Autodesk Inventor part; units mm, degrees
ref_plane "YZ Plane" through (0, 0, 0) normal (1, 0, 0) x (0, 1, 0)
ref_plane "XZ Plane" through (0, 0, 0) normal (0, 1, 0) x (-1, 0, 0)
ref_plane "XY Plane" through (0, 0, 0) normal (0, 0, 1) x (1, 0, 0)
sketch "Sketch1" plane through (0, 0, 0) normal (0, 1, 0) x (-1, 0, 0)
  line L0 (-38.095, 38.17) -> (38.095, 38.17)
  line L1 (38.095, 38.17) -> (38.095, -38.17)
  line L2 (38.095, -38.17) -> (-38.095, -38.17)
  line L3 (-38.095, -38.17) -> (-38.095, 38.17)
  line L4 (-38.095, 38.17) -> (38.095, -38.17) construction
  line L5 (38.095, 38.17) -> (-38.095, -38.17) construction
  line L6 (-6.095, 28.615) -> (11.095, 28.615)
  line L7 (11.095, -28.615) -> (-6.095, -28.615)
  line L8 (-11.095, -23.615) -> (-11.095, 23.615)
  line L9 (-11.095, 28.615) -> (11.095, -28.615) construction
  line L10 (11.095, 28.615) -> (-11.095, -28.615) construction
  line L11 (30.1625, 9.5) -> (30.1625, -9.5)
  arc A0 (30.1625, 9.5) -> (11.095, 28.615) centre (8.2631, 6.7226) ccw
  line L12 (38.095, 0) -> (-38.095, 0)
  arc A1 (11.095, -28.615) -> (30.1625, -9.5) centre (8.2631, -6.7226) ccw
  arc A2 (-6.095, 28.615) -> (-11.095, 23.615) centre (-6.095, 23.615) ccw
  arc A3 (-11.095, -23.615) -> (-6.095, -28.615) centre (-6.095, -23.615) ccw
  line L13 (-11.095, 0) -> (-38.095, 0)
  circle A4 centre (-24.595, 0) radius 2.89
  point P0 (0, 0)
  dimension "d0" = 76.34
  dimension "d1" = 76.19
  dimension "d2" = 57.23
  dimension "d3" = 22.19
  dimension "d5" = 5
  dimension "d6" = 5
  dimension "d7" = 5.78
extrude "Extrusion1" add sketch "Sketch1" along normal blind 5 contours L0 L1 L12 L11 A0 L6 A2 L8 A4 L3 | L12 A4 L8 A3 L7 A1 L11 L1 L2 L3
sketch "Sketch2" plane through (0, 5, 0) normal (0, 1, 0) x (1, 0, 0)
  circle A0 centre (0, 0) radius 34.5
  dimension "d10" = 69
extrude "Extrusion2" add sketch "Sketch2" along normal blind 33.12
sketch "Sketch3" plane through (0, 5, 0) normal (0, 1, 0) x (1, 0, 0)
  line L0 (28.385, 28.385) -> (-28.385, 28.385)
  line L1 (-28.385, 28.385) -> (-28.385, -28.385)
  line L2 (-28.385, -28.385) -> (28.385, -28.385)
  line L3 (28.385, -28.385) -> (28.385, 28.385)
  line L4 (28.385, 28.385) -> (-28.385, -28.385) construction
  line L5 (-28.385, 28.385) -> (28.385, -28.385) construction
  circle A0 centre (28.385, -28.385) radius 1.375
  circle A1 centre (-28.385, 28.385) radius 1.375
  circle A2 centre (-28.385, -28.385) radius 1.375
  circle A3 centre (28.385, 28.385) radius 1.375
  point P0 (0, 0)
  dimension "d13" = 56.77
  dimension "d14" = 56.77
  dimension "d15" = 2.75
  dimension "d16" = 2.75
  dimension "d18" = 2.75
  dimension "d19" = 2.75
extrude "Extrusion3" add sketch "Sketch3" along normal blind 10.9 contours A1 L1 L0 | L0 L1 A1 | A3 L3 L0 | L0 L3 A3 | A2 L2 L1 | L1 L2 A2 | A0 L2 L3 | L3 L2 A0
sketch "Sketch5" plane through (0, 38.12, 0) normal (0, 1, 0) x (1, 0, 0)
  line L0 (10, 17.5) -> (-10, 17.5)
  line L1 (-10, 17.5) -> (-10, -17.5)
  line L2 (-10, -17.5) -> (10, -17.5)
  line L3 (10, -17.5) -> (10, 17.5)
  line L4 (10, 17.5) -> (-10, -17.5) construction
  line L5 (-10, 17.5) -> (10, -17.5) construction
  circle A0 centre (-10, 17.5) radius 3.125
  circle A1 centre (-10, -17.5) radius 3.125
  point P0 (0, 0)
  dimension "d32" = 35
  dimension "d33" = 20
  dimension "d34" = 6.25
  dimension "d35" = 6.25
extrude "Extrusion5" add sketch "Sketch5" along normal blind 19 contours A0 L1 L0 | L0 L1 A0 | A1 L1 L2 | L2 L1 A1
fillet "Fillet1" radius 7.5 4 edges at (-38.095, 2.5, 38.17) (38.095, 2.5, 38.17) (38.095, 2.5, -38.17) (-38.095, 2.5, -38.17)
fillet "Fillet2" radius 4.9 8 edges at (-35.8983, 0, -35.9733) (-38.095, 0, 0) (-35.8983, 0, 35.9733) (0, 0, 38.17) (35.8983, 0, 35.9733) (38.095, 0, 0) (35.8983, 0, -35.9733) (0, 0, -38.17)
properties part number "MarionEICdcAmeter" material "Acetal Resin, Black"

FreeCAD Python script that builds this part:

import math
import FreeCAD as App
import Part
import Sketcher
Q = App.Units.Quantity


def edges_at(feature, points):
    """Names of the edges that pass closest to the given points."""
    edges = feature.Shape.Edges
    near = lambda p: min(range(len(edges)), key=lambda i: edges[i].distToShape(Part.Vertex(*p))[0])
    return sorted({f"Edge{near(p) + 1}" for p in points})


def add_polygon(sketch, points):
    """Adds a closed chain of lines whose ends are joined by coincident constraints."""
    first, n = sketch.GeometryCount, len(points)
    for a, b in zip(points, points[1:] + points[:1]):
        sketch.addGeometry(Part.LineSegment(App.Vector(*a, 0), App.Vector(*b, 0)), False)
    for i in range(n):
        sketch.addConstraint(Sketcher.Constraint("Coincident", first + i, 2, first + (i + 1) % n, 1))

doc = App.newDocument("Part")
body = doc.addObject("PartDesign::Body", "Body")

# Sketch on XZ plane
sketch1 = body.newObject("Sketcher::SketchObject", "Sketch")
sketch1.AttachmentSupport = (doc.getObject("XZ_Plane"), [""])
sketch1.MapMode = "FlatFace"
add_polygon(sketch1, [(-38.1, 38.2), (38.1, 38.2), (38.1, -38.2), (-38.1, -38.2)])  # lines 0-3
sketch1.addGeometry(Part.LineSegment(App.Vector(-30.2, 9.5, 0), App.Vector(-30.2, -9.5, 0)), False)  # 4
sketch1.addGeometry(Part.ArcOfCircle(Part.Circle(App.Vector(-8.3, -6.7, 0), App.Vector(0, 0, 1), 22.1), math.radians(-173), math.radians(-97)), False)  # 5
sketch1.addGeometry(Part.LineSegment(App.Vector(-11.1, -28.6, 0), App.Vector(6.1, -28.6, 0)), False)  # 6
sketch1.addGeometry(Part.ArcOfCircle(Part.Circle(App.Vector(6.1, -23.6, 0), App.Vector(0, 0, 1), 5), math.radians(-90), math.radians(0)), False)  # 7
sketch1.addGeometry(Part.LineSegment(App.Vector(11.1, -23.6, 0), App.Vector(11.1, 23.6, 0)), False)  # 8
sketch1.addGeometry(Part.ArcOfCircle(Part.Circle(App.Vector(6.1, 23.6, 0), App.Vector(0, 0, 1), 5), math.radians(0), math.radians(90)), False)  # 9
sketch1.addGeometry(Part.LineSegment(App.Vector(6.1, 28.6, 0), App.Vector(-11.1, 28.6, 0)), False)  # 10
sketch1.addGeometry(Part.ArcOfCircle(Part.Circle(App.Vector(-8.3, 6.7, 0), App.Vector(0, 0, 1), 22.1), math.radians(97), math.radians(173)), False)  # 11
sketch1.addGeometry(Part.Circle(App.Vector(24.6, 0, 0), App.Vector(0, 0, 1), 2.9), False)  # 12
sketch1.addConstraint([
    Sketcher.Constraint("Coincident", 4, 2, 5, 1),
    Sketcher.Constraint("Coincident", 5, 2, 6, 1),
    Sketcher.Constraint("Tangent", 6, 2, 7, 1),
    Sketcher.Constraint("Tangent", 7, 2, 8, 1),
    Sketcher.Constraint("Tangent", 8, 2, 9, 1),
    Sketcher.Constraint("Tangent", 9, 2, 10, 1),
    Sketcher.Constraint("Coincident", 10, 2, 11, 1),
    Sketcher.Constraint("Coincident", 11, 2, 4, 1),
    Sketcher.Constraint("Horizontal", 0),
    Sketcher.Constraint("Vertical", 1),
    Sketcher.Constraint("Horizontal", 2),
    Sketcher.Constraint("Vertical", 3),
    Sketcher.Constraint("Vertical", 4),
    Sketcher.Constraint("Horizontal", 6),
    Sketcher.Constraint("Vertical", 8),
    Sketcher.Constraint("Horizontal", 10),
    Sketcher.Constraint("Equal", 7, 9),
    Sketcher.Constraint("Equal", 5, 11),
    Sketcher.Constraint("Symmetric", 0, 2, 2, 2, -1, 1),
    Sketcher.Constraint("Symmetric", 5, 3, 11, 3, -1),
    Sketcher.Constraint("PointOnObject", 12, 3, -1),
    Sketcher.Constraint("Vertical", 5, 2, 10, 2),
    Sketcher.Constraint("Radius", 7, Q("5 mm")),
    Sketcher.Constraint("Diameter", 12, Q("5.78 mm")),
    Sketcher.Constraint("DistanceX", 0, 1, 0, 2, Q("76.19 mm")),
    Sketcher.Constraint("DistanceY", 1, 2, 1, 1, Q("76.34 mm")),
    Sketcher.Constraint("DistanceY", 4, 2, 4, 1, Q("19 mm")),
    Sketcher.Constraint("DistanceX", 5, 2, 7, 2, Q("22.19 mm")),
    Sketcher.Constraint("DistanceX", 9, 3, 0, 2, Q("32 mm")),
    Sketcher.Constraint("DistanceY", 8, 1, 8, 2, Q("47.23 mm")),
    Sketcher.Constraint("Radius", 5, Q("22.0748 mm")),
    Sketcher.Constraint("DistanceX", 7, 3, 12, 3, Q("18.5 mm")),
    Sketcher.Constraint("DistanceX", 5, 3, -1, 1, Q("8.263 mm")),
])
pad1 = body.newObject("PartDesign::Pad", "Pad")
pad1.Profile = sketch1
pad1.Length = 5
pad1.Reversed = True

# Sketch on XZ plane
sketch2 = body.newObject("Sketcher::SketchObject", "Sketch001")
sketch2.AttachmentSupport = (doc.getObject("XZ_Plane"), [""])
sketch2.MapMode = "FlatFace"
sketch2.AttachmentOffset = App.Placement(App.Vector(0, 0, -5), App.Rotation())
sketch2.addGeometry(Part.Circle(App.Vector(0, 0, 0), App.Vector(0, 0, 1), 34), False)
sketch2.addConstraint([
    Sketcher.Constraint("Coincident", 0, 3, -1, 1),
    Sketcher.Constraint("Diameter", 0, Q("69 mm")),
])
pad2 = body.newObject("PartDesign::Pad", "Pad001")
pad2.Profile = sketch2
pad2.Length = 33.12
pad2.Reversed = True

# Sketch on XZ plane
sketch3 = body.newObject("Sketcher::SketchObject", "Sketch002")
sketch3.AttachmentSupport = (doc.getObject("XZ_Plane"), [""])
sketch3.MapMode = "FlatFace"
sketch3.AttachmentOffset = App.Placement(App.Vector(0, 0, -5), App.Rotation())
sketch3.addGeometry([
    Part.Circle(App.Vector(-28.4, -28.4, 0), App.Vector(0, 0, 1), 1.4),
    Part.Circle(App.Vector(28.4, -28.4, 0), App.Vector(0, 0, 1), 1.4),
    Part.Circle(App.Vector(-28.4, 28.4, 0), App.Vector(0, 0, 1), 1.4),
    Part.Circle(App.Vector(28.4, 28.4, 0), App.Vector(0, 0, 1), 1.4),
], False)
sketch3.addConstraint([
    Sketcher.Constraint("Equal", 0, 1),
    Sketcher.Constraint("Equal", 1, 2),
    Sketcher.Constraint("Equal", 2, 3),
    Sketcher.Constraint("Symmetric", 1, 3, 2, 3, -1, 1),
    Sketcher.Constraint("Symmetric", 0, 3, 3, 3, -1, 1),
    Sketcher.Constraint("Symmetric", 0, 3, 1, 3, -2),
    Sketcher.Constraint("Diameter", 0, Q("2.75 mm")),
    Sketcher.Constraint("DistanceX", 0, 3, 1, 3, Q("56.77 mm")),
    Sketcher.Constraint("DistanceY", 0, 3, 2, 3, Q("56.77 mm")),
])
pad3 = body.newObject("PartDesign::Pad", "Pad002")
pad3.Profile = sketch3
pad3.Length = 10.9
pad3.Reversed = True

# Sketch on XZ plane
sketch4 = body.newObject("Sketcher::SketchObject", "Sketch003")
sketch4.AttachmentSupport = (doc.getObject("XZ_Plane"), [""])
sketch4.MapMode = "FlatFace"
sketch4.AttachmentOffset = App.Placement(App.Vector(0, 0, -38.12), App.Rotation())
sketch4.addGeometry([
    Part.Circle(App.Vector(-10, -17.5, 0), App.Vector(0, 0, 1), 3.1),
    Part.Circle(App.Vector(-10, 17.5, 0), App.Vector(0, 0, 1), 3.1),
], False)
sketch4.addConstraint([
    Sketcher.Constraint("Equal", 0, 1),
    Sketcher.Constraint("Symmetric", 0, 3, 1, 3, -1),
    Sketcher.Constraint("Diameter", 0, Q("6.25 mm")),
    Sketcher.Constraint("DistanceY", 0, 3, 1, 3, Q("35 mm")),
    Sketcher.Constraint("DistanceX", 0, 3, -1, 1, Q("10 mm")),
])
pad4 = body.newObject("PartDesign::Pad", "Pad003")
pad4.Profile = sketch4
pad4.Length = 19
pad4.Reversed = True
doc.recompute()

fillet = body.newObject("PartDesign::Fillet", "Fillet")
fillet.Base = (pad4, edges_at(pad4, [
    (-38.095, 2.5, 38.17),
    (38.095, 2.5, 38.17),
    (38.095, 2.5, -38.17),
    (-38.095, 2.5, -38.17),
]))
fillet.Radius = 7.5
doc.recompute()

fillet2 = body.newObject("PartDesign::Fillet", "Fillet001")
fillet2.Base = (fillet, edges_at(fillet, [
    (-35.898, 0, -35.973),
    (-38.095, 0, 0),
    (-35.898, 0, 35.973),
    (0, 0, 38.17),
    (35.898, 0, 35.973),
    (38.095, 0, 0),
    (35.898, 0, -35.973),
    (0, 0, -38.17),
]))
fillet2.Radius = 4.9

doc.recompute()
